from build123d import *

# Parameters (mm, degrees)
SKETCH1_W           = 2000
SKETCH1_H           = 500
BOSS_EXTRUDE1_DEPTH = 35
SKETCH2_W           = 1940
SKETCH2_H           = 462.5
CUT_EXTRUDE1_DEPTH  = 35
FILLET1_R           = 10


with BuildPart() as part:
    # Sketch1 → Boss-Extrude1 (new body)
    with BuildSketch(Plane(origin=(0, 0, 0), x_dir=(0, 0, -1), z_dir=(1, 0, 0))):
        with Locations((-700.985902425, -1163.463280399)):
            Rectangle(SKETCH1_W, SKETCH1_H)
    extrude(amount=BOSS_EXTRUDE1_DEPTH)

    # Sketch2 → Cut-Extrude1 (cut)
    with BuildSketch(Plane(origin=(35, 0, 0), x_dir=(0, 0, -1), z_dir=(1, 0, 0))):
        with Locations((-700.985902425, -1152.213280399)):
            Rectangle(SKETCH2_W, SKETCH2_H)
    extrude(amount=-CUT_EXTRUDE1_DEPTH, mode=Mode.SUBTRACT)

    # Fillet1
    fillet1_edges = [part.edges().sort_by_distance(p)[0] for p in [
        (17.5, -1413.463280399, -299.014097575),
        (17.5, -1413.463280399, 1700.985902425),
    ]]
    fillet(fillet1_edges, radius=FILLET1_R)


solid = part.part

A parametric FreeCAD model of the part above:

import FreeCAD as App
import Part
import Sketcher
from FreeCAD import Vector
Q = App.Units.Quantity


def edges_at(feature, points):
    """Names of the edges that pass closest to the given points."""
    edges = feature.Shape.Edges
    near = lambda p: min(range(len(edges)), key=lambda i: edges[i].distToShape(Part.Vertex(*p))[0])
    return sorted({f"Edge{near(p) + 1}" for p in points})


def add_polygon(sketch, points):
    """Adds a closed chain of lines whose ends are joined by coincident constraints."""
    first, n = sketch.GeometryCount, len(points)
    for a, b in zip(points, points[1:] + points[:1]):
        sketch.addGeometry(Part.LineSegment(App.Vector(*a, 0), App.Vector(*b, 0)), False)
    for i in range(n):
        sketch.addConstraint(Sketcher.Constraint("Coincident", first + i, 2, first + (i + 1) % n, 1))

doc = App.newDocument("Part")
body = doc.addObject("PartDesign::Body", "Body")

sketch1 = doc.addObject("Sketcher::SketchObject", "Sketch")
body.addObject(sketch1)
sketch1.AttachmentSupport = (doc.YZ_Plane, [""])
sketch1.MapMode = "FlatFace"
add_polygon(sketch1, [(-913.46328, 1700.985902), (-1413.46328, 1700.985902), (-1413.46328, -299.014098), (-913.46328, -299.014098)])
sketch1.addConstraint(Sketcher.Constraint("Horizontal", 0))
sketch1.addConstraint(Sketcher.Constraint("Vertical", 1))
sketch1.addConstraint(Sketcher.Constraint("Horizontal", 2))
sketch1.addConstraint(Sketcher.Constraint("Vertical", 3))
sketch1.addConstraint(Sketcher.Constraint("DistanceX", 0, 2, 0, 1, Q("500 mm")))
sketch1.addConstraint(Sketcher.Constraint("DistanceY", 1, 2, 1, 1, Q("2000 mm")))
sketch1.addConstraint(Sketcher.Constraint("DistanceX", 0, 2, -1, 1, Q("1413.46328 mm")))
sketch1.addConstraint(Sketcher.Constraint("DistanceY", -1, 1, 0, 2, Q("1700.985902 mm")))
pad1 = doc.addObject("PartDesign::Pad", "Pad")
body.addObject(pad1)
pad1.Profile = sketch1
pad1.Length = 35

sketch2 = doc.addObject("Sketcher::SketchObject", "Sketch001")
body.addObject(sketch2)
sketch2.AttachmentSupport = (doc.YZ_Plane, [""])
sketch2.MapMode = "FlatFace"
sketch2.AttachmentOffset = App.Placement(Vector(0, 0, 35), App.Rotation())
add_polygon(sketch2, [(-920.96328, 1670.985902), (-1383.46328, 1670.985902), (-1383.46328, -269.014098), (-920.96328, -269.014098)])
sketch2.addConstraint(Sketcher.Constraint("Horizontal", 0))
sketch2.addConstraint(Sketcher.Constraint("Vertical", 1))
sketch2.addConstraint(Sketcher.Constraint("Horizontal", 2))
sketch2.addConstraint(Sketcher.Constraint("Vertical", 3))
sketch2.addConstraint(Sketcher.Constraint("DistanceY", 1, 2, 1, 1, Q("1940 mm")))
sketch2.addConstraint(Sketcher.Constraint("DistanceX", 0, 2, 0, 1, Q("462.5 mm")))
sketch2.addConstraint(Sketcher.Constraint("DistanceX", 0, 2, -1, 1, Q("1383.46328 mm")))
sketch2.addConstraint(Sketcher.Constraint("DistanceY", -1, 1, 0, 2, Q("1670.985902 mm")))
pocket1 = doc.addObject("PartDesign::Pocket", "Pocket")
body.addObject(pocket1)
pocket1.Profile = sketch2
pocket1.Length = 35
doc.recompute()

fillet = doc.addObject("PartDesign::Fillet", "Fillet")
body.addObject(fillet)
fillet.Base = (pocket1, edges_at(pocket1, [(17.5, -1413.463, -299.014), (17.5, -1413.463, 1700.986)]))
fillet.Radius = 10

doc.recompute()
